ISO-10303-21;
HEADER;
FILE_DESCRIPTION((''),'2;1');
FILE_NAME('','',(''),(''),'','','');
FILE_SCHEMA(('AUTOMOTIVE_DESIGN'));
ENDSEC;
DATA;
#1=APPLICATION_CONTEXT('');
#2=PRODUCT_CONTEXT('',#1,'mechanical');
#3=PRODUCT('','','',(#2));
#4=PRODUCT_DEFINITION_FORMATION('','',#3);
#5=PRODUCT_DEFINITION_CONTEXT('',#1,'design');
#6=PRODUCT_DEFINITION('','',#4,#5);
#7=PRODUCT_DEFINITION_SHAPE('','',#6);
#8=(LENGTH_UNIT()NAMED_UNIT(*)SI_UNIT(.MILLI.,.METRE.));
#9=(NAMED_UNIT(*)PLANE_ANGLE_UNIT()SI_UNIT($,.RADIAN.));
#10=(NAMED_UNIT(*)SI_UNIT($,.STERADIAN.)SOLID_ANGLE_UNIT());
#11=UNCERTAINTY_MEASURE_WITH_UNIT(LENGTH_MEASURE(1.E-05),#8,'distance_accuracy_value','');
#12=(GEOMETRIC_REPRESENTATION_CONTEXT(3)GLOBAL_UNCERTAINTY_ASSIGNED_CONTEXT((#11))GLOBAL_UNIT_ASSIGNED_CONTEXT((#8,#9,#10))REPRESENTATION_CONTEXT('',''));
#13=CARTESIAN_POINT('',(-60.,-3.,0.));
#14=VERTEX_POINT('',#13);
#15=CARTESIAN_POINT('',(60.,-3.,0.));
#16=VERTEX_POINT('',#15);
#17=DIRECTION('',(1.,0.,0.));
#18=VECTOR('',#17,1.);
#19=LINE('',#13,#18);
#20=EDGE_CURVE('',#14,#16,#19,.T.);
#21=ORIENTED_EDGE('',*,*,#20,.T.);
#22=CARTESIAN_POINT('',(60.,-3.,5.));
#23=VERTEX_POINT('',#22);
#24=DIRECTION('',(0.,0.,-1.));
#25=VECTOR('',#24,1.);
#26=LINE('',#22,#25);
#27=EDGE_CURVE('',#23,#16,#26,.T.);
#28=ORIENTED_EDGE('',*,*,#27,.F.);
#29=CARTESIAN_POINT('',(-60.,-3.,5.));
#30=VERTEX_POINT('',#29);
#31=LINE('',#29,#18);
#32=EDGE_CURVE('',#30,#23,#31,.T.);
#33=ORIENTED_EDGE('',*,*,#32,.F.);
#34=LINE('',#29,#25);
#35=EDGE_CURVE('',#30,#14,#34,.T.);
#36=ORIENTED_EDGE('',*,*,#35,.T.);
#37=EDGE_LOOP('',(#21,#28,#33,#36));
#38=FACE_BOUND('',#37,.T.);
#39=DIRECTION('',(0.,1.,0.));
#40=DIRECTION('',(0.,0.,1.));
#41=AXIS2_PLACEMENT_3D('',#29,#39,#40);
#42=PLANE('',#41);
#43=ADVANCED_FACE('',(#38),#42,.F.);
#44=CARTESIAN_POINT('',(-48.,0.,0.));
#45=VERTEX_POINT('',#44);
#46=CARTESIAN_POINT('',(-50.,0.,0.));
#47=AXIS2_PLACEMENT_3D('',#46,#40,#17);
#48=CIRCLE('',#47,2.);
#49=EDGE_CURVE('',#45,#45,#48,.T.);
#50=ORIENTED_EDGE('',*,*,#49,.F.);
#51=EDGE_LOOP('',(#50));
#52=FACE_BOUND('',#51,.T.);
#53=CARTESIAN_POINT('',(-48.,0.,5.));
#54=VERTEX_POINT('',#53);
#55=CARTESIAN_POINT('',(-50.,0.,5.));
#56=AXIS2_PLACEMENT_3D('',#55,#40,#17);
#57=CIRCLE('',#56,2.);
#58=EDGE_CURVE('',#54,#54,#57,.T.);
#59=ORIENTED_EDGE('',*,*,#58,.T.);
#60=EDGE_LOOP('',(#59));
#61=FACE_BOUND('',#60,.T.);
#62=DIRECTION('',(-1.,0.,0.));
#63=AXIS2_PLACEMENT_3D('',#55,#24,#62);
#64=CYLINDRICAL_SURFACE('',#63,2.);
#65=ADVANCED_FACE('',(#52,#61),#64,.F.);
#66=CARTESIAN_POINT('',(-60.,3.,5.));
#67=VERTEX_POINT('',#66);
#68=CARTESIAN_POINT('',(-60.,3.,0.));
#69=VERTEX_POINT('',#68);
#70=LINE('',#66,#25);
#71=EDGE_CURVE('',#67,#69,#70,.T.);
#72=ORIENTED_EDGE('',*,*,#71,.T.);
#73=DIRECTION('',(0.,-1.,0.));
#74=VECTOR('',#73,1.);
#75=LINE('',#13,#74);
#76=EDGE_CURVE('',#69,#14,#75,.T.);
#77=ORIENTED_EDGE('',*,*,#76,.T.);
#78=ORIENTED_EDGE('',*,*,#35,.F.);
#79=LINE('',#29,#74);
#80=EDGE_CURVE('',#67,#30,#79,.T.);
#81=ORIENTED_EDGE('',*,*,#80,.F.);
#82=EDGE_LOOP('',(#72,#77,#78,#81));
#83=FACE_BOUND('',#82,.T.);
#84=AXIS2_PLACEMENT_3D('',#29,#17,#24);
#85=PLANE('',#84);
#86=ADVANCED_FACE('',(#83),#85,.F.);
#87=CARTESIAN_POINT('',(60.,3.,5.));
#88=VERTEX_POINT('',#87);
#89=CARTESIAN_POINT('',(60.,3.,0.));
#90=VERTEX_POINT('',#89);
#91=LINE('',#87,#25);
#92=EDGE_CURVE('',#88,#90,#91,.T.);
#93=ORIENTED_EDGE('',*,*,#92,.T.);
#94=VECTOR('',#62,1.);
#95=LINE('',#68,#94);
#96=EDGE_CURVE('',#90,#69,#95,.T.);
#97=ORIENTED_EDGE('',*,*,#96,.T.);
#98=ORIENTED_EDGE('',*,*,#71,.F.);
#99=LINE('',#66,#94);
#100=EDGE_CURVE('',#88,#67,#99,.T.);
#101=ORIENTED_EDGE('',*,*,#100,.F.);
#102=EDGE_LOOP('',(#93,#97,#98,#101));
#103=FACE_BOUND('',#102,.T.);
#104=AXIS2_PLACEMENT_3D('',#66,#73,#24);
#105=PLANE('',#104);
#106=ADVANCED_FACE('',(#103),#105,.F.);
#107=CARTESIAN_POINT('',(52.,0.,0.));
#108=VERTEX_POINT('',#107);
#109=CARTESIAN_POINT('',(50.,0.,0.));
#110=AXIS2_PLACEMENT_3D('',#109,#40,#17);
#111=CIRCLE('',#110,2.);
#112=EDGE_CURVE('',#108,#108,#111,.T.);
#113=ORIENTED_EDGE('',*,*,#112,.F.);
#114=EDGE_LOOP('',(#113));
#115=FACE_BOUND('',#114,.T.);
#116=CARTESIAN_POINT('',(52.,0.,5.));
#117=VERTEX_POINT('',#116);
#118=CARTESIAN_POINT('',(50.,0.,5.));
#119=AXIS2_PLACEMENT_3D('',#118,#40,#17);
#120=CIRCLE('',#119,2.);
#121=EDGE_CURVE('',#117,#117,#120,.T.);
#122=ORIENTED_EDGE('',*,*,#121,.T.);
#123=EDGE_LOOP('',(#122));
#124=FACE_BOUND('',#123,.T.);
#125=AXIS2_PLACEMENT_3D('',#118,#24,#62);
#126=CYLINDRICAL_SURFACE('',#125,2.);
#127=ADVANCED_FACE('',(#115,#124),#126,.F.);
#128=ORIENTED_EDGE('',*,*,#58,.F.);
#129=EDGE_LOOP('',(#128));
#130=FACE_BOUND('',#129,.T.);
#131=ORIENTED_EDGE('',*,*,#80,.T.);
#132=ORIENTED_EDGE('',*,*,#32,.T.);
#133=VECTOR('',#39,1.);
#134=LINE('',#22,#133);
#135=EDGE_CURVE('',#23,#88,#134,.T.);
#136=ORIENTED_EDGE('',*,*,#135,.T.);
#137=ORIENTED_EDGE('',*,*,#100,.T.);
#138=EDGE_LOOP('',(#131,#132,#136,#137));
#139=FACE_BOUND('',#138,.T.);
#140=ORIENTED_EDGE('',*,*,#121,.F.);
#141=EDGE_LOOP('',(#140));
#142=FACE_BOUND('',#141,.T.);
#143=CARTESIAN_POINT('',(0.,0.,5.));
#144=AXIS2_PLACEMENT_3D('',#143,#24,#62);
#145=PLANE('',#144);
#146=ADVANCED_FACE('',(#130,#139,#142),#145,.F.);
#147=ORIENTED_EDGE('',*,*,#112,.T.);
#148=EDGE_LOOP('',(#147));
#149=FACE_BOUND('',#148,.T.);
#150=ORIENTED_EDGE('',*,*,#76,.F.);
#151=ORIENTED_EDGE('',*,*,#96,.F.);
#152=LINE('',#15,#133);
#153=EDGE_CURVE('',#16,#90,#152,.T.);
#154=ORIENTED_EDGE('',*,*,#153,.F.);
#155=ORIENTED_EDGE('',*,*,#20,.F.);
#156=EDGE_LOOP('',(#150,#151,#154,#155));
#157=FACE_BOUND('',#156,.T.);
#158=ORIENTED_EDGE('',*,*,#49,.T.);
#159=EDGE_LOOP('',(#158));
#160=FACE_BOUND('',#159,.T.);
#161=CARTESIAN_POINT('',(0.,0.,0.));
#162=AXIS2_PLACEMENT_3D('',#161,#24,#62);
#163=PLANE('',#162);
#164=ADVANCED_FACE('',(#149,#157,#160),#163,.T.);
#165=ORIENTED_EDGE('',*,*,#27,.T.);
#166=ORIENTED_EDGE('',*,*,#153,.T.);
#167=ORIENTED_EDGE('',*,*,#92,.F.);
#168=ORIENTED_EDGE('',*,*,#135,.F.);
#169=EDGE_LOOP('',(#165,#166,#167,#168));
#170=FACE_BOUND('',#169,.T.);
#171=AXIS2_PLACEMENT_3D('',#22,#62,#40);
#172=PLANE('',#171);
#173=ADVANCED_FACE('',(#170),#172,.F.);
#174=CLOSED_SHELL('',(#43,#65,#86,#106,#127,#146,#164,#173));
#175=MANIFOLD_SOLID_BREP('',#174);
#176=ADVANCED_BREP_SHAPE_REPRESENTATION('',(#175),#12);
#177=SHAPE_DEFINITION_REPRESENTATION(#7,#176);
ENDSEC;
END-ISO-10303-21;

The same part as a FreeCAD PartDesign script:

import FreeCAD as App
import Part
import Sketcher

V = App.Vector

doc = App.newDocument("Part")
body = doc.addObject("PartDesign::Body", "Body")

sketch1 = doc.addObject("Sketcher::SketchObject", "Sketch")
body.addObject(sketch1)
sketch1.AttachmentSupport = (doc.XY_Plane, [""])
sketch1.MapMode = "FlatFace"
sketch1.addGeometry([
    Part.LineSegment(V(-60, 3, 0), V(-60, -3, 0)),
    Part.LineSegment(V(-60, -3, 0), V(60, -3, 0)),
    Part.LineSegment(V(60, -3, 0), V(60, 3, 0)),
    Part.LineSegment(V(60, 3, 0), V(-60, 3, 0)),
    Part.Circle(V(-50, 0, 0), V(0, 0, 1), 2),
    Part.Circle(V(50, 0, 0), V(0, 0, 1), 2),
], False)
sketch1.addConstraint([
    Sketcher.Constraint("Coincident", 0, 2, 1, 1),
    Sketcher.Constraint("Coincident", 1, 2, 2, 1),
    Sketcher.Constraint("Coincident", 2, 2, 3, 1),
    Sketcher.Constraint("Coincident", 3, 2, 0, 1),
    Sketcher.Constraint("Vertical", 0),
    Sketcher.Constraint("Horizontal", 1),
    Sketcher.Constraint("Vertical", 2),
    Sketcher.Constraint("Horizontal", 3),
    Sketcher.Constraint("Equal", 4, 5),
    Sketcher.Constraint("Symmetric", 4, 3, 5, 3, -1, 1),
    Sketcher.Constraint("Symmetric", 0, 2, 2, 2, -1, 1),
    Sketcher.Constraint("PointOnObject", 4, 3, -1),
    Sketcher.Constraint("Diameter", 4, 4.0),
    Sketcher.Constraint("DistanceX", 1, 1, 1, 2, 120.0),
    Sketcher.Constraint("DistanceY", 0, 2, 0, 1, 6.0),
    Sketcher.Constraint("DistanceX", 4, 3, -1, 1, 50.0),
])
pad1 = doc.addObject("PartDesign::Pad", "Pad")
body.addObject(pad1)
pad1.Profile = sketch1
pad1.Length = 5

doc.recompute()
